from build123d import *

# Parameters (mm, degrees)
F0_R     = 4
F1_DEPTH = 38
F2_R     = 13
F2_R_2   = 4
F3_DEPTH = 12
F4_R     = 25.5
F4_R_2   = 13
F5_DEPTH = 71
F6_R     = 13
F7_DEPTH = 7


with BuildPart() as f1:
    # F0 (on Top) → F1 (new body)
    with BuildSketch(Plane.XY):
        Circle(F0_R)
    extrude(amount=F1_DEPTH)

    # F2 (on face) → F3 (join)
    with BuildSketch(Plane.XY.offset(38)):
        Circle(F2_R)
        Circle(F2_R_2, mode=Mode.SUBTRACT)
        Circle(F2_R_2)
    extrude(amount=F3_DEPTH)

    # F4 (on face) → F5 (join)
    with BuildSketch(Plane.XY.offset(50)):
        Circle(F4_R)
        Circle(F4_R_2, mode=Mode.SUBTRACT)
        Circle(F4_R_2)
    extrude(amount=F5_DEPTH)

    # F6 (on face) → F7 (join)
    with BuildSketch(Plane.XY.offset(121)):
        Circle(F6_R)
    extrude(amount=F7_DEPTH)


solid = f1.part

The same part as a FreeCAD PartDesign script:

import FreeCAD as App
import Part
import Sketcher

V = App.Vector

doc = App.newDocument("Part")
body = doc.addObject("PartDesign::Body", "Body")

# Sketch on XY plane
sketch1 = doc.addObject("Sketcher::SketchObject", "Sketch")
body.addObject(sketch1)
sketch1.AttachmentSupport = (doc.XY_Plane, [""])
sketch1.MapMode = "FlatFace"
sketch1.addGeometry(Part.Circle(V(0, 0, 0), V(0, 0, 1), 4), False)
sketch1.addConstraint([
    Sketcher.Constraint("Coincident", 0, 3, -1, 1),
    Sketcher.Constraint("Diameter", 0, 8.0),
])
pad1 = doc.addObject("PartDesign::Pad", "Pad")
body.addObject(pad1)
pad1.Profile = sketch1
pad1.Length = 38

# Sketch on XY plane
sketch2 = doc.addObject("Sketcher::SketchObject", "Sketch001")
body.addObject(sketch2)
sketch2.AttachmentSupport = (doc.XY_Plane, [""])
sketch2.MapMode = "FlatFace"
sketch2.AttachmentOffset = App.Placement(V(0, 0, 38), App.Rotation())
sketch2.addGeometry(Part.Circle(V(0, 0, 0), V(0, 0, 1), 13), False)
sketch2.addConstraint([
    Sketcher.Constraint("Coincident", 0, 3, -1, 1),
    Sketcher.Constraint("Diameter", 0, 26.0),
])
pad2 = doc.addObject("PartDesign::Pad", "Pad001")
body.addObject(pad2)
pad2.Profile = sketch2
pad2.Length = 12

# Sketch on XY plane
sketch3 = doc.addObject("Sketcher::SketchObject", "Sketch002")
body.addObject(sketch3)
sketch3.AttachmentSupport = (doc.XY_Plane, [""])
sketch3.MapMode = "FlatFace"
sketch3.AttachmentOffset = App.Placement(V(0, 0, 50), App.Rotation())
sketch3.addGeometry(Part.Circle(V(0, 0, 0), V(0, 0, 1), 26), False)
sketch3.addConstraint([
    Sketcher.Constraint("Coincident", 0, 3, -1, 1),
    Sketcher.Constraint("Diameter", 0, 51.0),
])
pad3 = doc.addObject("PartDesign::Pad", "Pad002")
body.addObject(pad3)
pad3.Profile = sketch3
pad3.Length = 71

# Sketch on XY plane
sketch4 = doc.addObject("Sketcher::SketchObject", "Sketch003")
body.addObject(sketch4)
sketch4.AttachmentSupport = (doc.XY_Plane, [""])
sketch4.MapMode = "FlatFace"
sketch4.AttachmentOffset = App.Placement(V(0, 0, 121), App.Rotation())
sketch4.addGeometry(Part.Circle(V(0, 0, 0), V(0, 0, 1), 13), False)
sketch4.addConstraint([
    Sketcher.Constraint("Coincident", 0, 3, -1, 1),
    Sketcher.Constraint("Diameter", 0, 26.0),
])
pad4 = doc.addObject("PartDesign::Pad", "Pad003")
body.addObject(pad4)
pad4.Profile = sketch4
pad4.Length = 7

doc.recompute()
